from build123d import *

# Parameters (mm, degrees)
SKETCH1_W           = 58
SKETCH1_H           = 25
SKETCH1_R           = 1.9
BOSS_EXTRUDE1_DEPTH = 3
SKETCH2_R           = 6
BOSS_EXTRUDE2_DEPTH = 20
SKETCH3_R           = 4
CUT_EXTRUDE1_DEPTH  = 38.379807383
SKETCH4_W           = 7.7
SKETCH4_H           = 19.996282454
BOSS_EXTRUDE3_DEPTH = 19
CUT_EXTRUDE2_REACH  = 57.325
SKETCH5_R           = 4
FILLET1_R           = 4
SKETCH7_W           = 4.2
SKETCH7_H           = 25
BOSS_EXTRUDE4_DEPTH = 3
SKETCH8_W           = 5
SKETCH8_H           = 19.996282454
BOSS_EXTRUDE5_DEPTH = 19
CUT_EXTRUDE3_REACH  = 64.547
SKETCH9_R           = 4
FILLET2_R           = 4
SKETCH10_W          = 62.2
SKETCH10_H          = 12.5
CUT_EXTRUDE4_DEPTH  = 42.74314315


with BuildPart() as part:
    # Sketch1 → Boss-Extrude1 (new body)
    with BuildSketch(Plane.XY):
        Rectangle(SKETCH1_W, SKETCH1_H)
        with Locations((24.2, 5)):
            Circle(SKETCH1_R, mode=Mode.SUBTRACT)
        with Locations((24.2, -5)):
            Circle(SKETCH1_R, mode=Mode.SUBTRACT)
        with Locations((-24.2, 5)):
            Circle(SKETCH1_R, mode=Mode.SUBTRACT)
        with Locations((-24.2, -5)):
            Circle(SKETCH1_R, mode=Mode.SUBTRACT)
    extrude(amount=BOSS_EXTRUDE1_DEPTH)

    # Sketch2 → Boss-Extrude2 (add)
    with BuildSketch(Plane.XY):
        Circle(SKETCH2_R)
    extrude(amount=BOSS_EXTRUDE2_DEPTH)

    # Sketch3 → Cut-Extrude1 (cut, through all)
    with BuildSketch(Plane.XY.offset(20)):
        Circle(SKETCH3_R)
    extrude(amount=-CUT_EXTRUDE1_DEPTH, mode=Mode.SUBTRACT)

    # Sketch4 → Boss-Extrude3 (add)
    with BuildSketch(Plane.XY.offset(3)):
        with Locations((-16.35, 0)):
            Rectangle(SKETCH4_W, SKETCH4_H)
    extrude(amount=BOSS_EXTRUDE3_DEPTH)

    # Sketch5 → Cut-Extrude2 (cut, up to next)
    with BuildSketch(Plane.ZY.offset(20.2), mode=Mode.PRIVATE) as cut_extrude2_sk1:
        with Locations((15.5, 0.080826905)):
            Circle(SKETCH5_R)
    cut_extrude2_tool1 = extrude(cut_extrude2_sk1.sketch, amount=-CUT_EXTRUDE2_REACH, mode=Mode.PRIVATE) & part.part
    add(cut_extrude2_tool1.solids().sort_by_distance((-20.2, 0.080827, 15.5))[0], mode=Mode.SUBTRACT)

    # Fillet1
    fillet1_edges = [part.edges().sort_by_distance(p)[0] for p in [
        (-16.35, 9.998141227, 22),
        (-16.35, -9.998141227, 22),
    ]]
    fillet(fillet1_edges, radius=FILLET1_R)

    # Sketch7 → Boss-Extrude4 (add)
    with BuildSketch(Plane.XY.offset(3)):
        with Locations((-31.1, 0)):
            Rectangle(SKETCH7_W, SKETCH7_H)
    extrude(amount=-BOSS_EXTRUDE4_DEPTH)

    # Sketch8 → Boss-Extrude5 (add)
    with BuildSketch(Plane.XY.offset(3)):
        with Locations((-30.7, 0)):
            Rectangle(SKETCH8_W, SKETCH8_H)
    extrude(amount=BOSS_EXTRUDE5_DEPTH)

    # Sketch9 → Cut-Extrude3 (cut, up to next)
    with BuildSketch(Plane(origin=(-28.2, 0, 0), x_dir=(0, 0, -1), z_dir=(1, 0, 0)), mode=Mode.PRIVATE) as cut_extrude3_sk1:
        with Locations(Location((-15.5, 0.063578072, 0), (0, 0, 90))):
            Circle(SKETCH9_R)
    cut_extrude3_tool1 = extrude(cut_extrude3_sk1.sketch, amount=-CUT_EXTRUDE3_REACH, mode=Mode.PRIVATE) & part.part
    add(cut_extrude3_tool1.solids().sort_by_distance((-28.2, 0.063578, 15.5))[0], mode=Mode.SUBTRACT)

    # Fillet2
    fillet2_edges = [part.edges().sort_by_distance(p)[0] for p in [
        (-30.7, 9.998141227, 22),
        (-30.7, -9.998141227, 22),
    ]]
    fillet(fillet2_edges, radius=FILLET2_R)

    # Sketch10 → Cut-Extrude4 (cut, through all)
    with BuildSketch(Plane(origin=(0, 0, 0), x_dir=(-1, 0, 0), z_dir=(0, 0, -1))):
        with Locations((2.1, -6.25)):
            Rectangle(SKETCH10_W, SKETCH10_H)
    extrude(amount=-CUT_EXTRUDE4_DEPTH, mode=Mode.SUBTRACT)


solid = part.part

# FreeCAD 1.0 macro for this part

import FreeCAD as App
import Part
import Sketcher

V = App.Vector


def edges_at(feature, points):
    """Names of the edges that pass closest to the given points."""
    edges = feature.Shape.Edges
    near = lambda p: min(range(len(edges)), key=lambda i: edges[i].distToShape(Part.Vertex(*p))[0])
    return sorted({f"Edge{near(p) + 1}" for p in points})


def add_polygon(sketch, points):
    """Adds a closed chain of lines whose ends are joined by coincident constraints."""
    first, n = sketch.GeometryCount, len(points)
    for a, b in zip(points, points[1:] + points[:1]):
        sketch.addGeometry(Part.LineSegment(App.Vector(*a, 0), App.Vector(*b, 0)), False)
    for i in range(n):
        sketch.addConstraint(Sketcher.Constraint("Coincident", first + i, 2, first + (i + 1) % n, 1))

doc = App.newDocument("Part")
body = doc.addObject("PartDesign::Body", "Body")

sketch1 = body.newObject("Sketcher::SketchObject", "Sketch")
sketch1.AttachmentSupport = (doc.getObject("XY_Plane"), [""])
sketch1.MapMode = "FlatFace"
add_polygon(sketch1, [(-29, 12.5), (-29, -12.5), (29, -12.5), (29, 12.5)])
sketch1.addGeometry(Part.Circle(V(-24.2, -5, 0), V(0, 0, 1), 1.9), False)
sketch1.addGeometry(Part.Circle(V(24.2, -5, 0), V(0, 0, 1), 1.9), False)
sketch1.addGeometry(Part.Circle(V(-24.2, 5, 0), V(0, 0, 1), 1.9), False)
sketch1.addGeometry(Part.Circle(V(24.2, 5, 0), V(0, 0, 1), 1.9), False)
sketch1.addConstraint(Sketcher.Constraint("Vertical", 0))
sketch1.addConstraint(Sketcher.Constraint("Horizontal", 1))
sketch1.addConstraint(Sketcher.Constraint("Vertical", 2))
sketch1.addConstraint(Sketcher.Constraint("Horizontal", 3))
sketch1.addConstraint(Sketcher.Constraint("Equal", 4, 5))
sketch1.addConstraint(Sketcher.Constraint("Equal", 5, 6))
sketch1.addConstraint(Sketcher.Constraint("Equal", 6, 7))
sketch1.addConstraint(Sketcher.Constraint("Symmetric", 5, 3, 6, 3, -1, 1))
sketch1.addConstraint(Sketcher.Constraint("Symmetric", 4, 3, 7, 3, -1, 1))
sketch1.addConstraint(Sketcher.Constraint("Symmetric", 0, 2, 2, 2, -1, 1))
sketch1.addConstraint(Sketcher.Constraint("Symmetric", 4, 3, 5, 3, -2))
sketch1.addConstraint(Sketcher.Constraint("Diameter", 4, 3.8))
sketch1.addConstraint(Sketcher.Constraint("DistanceX", 1, 1, 1, 2, 58.0))
sketch1.addConstraint(Sketcher.Constraint("DistanceY", 0, 2, 0, 1, 25.0))
sketch1.addConstraint(Sketcher.Constraint("DistanceY", 4, 3, -1, 1, 5.0))
sketch1.addConstraint(Sketcher.Constraint("DistanceX", 4, 3, -1, 1, 24.2))
pad1 = body.newObject("PartDesign::Pad", "Pad")
pad1.Profile = sketch1
pad1.Length = 3

sketch2 = body.newObject("Sketcher::SketchObject", "Sketch001")
sketch2.AttachmentSupport = (doc.getObject("XY_Plane"), [""])
sketch2.MapMode = "FlatFace"
sketch2.addGeometry(Part.Circle(V(0, 0, 0), V(0, 0, 1), 6), False)
sketch2.addConstraint(Sketcher.Constraint("Coincident", 0, 3, -1, 1))
sketch2.addConstraint(Sketcher.Constraint("Diameter", 0, 12.0))
pad2 = body.newObject("PartDesign::Pad", "Pad001")
pad2.Profile = sketch2
pad2.Length = 20

sketch3 = body.newObject("Sketcher::SketchObject", "Sketch002")
sketch3.AttachmentSupport = (doc.getObject("XY_Plane"), [""])
sketch3.MapMode = "FlatFace"
sketch3.AttachmentOffset = App.Placement(V(0, 0, 20), App.Rotation())
sketch3.addGeometry(Part.Circle(V(0, 0, 0), V(0, 0, 1), 4), False)
sketch3.addConstraint(Sketcher.Constraint("Coincident", 0, 3, -1, 1))
sketch3.addConstraint(Sketcher.Constraint("Diameter", 0, 8.0))
pocket1 = body.newObject("PartDesign::Pocket", "Pocket")
pocket1.Profile = sketch3
pocket1.Type = "ThroughAll"

sketch4 = body.newObject("Sketcher::SketchObject", "Sketch003")
sketch4.AttachmentSupport = (doc.getObject("XY_Plane"), [""])
sketch4.MapMode = "FlatFace"
sketch4.AttachmentOffset = App.Placement(V(0, 0, 3), App.Rotation())
add_polygon(sketch4, [(-20, 10), (-20, -10), (-12, -10), (-12, 10)])
sketch4.addConstraint(Sketcher.Constraint("Vertical", 0))
sketch4.addConstraint(Sketcher.Constraint("Horizontal", 1))
sketch4.addConstraint(Sketcher.Constraint("Vertical", 2))
sketch4.addConstraint(Sketcher.Constraint("Horizontal", 3))
sketch4.addConstraint(Sketcher.Constraint("DistanceX", 1, 1, 1, 2, 7.7))
sketch4.addConstraint(Sketcher.Constraint("DistanceX", 0, 2, -1, 1, 20.2))
sketch4.addConstraint(Sketcher.Constraint("DistanceY", 0, 2, 0, 1, 19.996282))
sketch4.addConstraint(Sketcher.Constraint("DistanceY", 0, 2, -1, 1, 9.998141))
pad3 = body.newObject("PartDesign::Pad", "Pad002")
pad3.Profile = sketch4
pad3.Length = 19

sketch5 = body.newObject("Sketcher::SketchObject", "Sketch004")
sketch5.AttachmentSupport = (doc.getObject("YZ_Plane"), [""])
sketch5.MapMode = "FlatFace"
sketch5.AttachmentOffset = App.Placement(V(0, 0, -20.2), App.Rotation())
sketch5.addGeometry(Part.Circle(V(0.1, 15.5, 0), V(0, 0, 1), 4), False)
sketch5.addConstraint(Sketcher.Constraint("Diameter", 0, 8.0))
sketch5.addConstraint(Sketcher.Constraint("DistanceY", -1, 1, 0, 3, 15.5))
sketch5.addConstraint(Sketcher.Constraint("DistanceX", -1, 1, 0, 3, 0.080827))
pocket2 = body.newObject("PartDesign::Pocket", "Pocket001")
pocket2.Profile = sketch5
pocket2.Type = "UpToFirst"
pocket2.Reversed = True
doc.recompute()

fillet = body.newObject("PartDesign::Fillet", "Fillet")
fillet.Base = (pocket2, edges_at(pocket2, [(-16.35, 9.998, 22), (-16.35, -9.998, 22)]))
fillet.Radius = 4

sketch6 = body.newObject("Sketcher::SketchObject", "Sketch005")
sketch6.AttachmentSupport = (doc.getObject("XY_Plane"), [""])
sketch6.MapMode = "FlatFace"
sketch6.AttachmentOffset = App.Placement(V(0, 0, 3), App.Rotation())
add_polygon(sketch6, [(-33.2, 12.5), (-33.2, -12.5), (-29, -12.5), (-29, 12.5)])
sketch6.addConstraint(Sketcher.Constraint("Vertical", 0))
sketch6.addConstraint(Sketcher.Constraint("Horizontal", 1))
sketch6.addConstraint(Sketcher.Constraint("Vertical", 2))
sketch6.addConstraint(Sketcher.Constraint("Horizontal", 3))
sketch6.addConstraint(Sketcher.Constraint("DistanceY", 0, 2, 0, 1, 25.0))
sketch6.addConstraint(Sketcher.Constraint("DistanceX", 1, 1, 1, 2, 4.2))
sketch6.addConstraint(Sketcher.Constraint("DistanceX", 1, 2, -1, 1, 29.0))
sketch6.addConstraint(Sketcher.Constraint("DistanceY", 0, 2, -1, 1, 12.5))
pad4 = body.newObject("PartDesign::Pad", "Pad003")
pad4.Profile = sketch6
pad4.Length = 3
pad4.Reversed = True

sketch7 = body.newObject("Sketcher::SketchObject", "Sketch006")
sketch7.AttachmentSupport = (doc.getObject("XY_Plane"), [""])
sketch7.MapMode = "FlatFace"
sketch7.AttachmentOffset = App.Placement(V(0, 0, 3), App.Rotation())
add_polygon(sketch7, [(-33, 10), (-33, -10), (-28, -10), (-28, 10)])
sketch7.addConstraint(Sketcher.Constraint("Vertical", 0))
sketch7.addConstraint(Sketcher.Constraint("Horizontal", 1))
sketch7.addConstraint(Sketcher.Constraint("Vertical", 2))
sketch7.addConstraint(Sketcher.Constraint("Horizontal", 3))
sketch7.addConstraint(Sketcher.Constraint("DistanceX", 1, 1, 1, 2, 5.0))
sketch7.addConstraint(Sketcher.Constraint("DistanceX", 0, 2, -1, 1, 33.2))
sketch7.addConstraint(Sketcher.Constraint("DistanceY", 0, 2, 0, 1, 19.996282))
sketch7.addConstraint(Sketcher.Constraint("DistanceY", 0, 2, -1, 1, 9.998141))
pad5 = body.newObject("PartDesign::Pad", "Pad004")
pad5.Profile = sketch7
pad5.Length = 19

sketch8 = body.newObject("Sketcher::SketchObject", "Sketch007")
sketch8.AttachmentSupport = (doc.getObject("YZ_Plane"), [""])
sketch8.MapMode = "FlatFace"
sketch8.AttachmentOffset = App.Placement(V(0, 0, -28.2), App.Rotation())
sketch8.addGeometry(Part.Circle(V(0.1, 15.5, 0), V(0, 0, 1), 4), False)
sketch8.addConstraint(Sketcher.Constraint("Diameter", 0, 8.0))
sketch8.addConstraint(Sketcher.Constraint("DistanceY", -1, 1, 0, 3, 15.5))
sketch8.addConstraint(Sketcher.Constraint("DistanceX", -1, 1, 0, 3, 0.063578))
pocket3 = body.newObject("PartDesign::Pocket", "Pocket002")
pocket3.Profile = sketch8
pocket3.Type = "UpToFirst"
doc.recompute()

fillet2 = body.newObject("PartDesign::Fillet", "Fillet001")
fillet2.Base = (pocket3, edges_at(pocket3, [(-30.7, 9.998, 22), (-30.7, -9.998, 22)]))
fillet2.Radius = 4

sketch9 = body.newObject("Sketcher::SketchObject", "Sketch008")
sketch9.AttachmentSupport = (doc.getObject("XY_Plane"), [""])
sketch9.MapMode = "FlatFace"
add_polygon(sketch9, [(29, 0), (29, -12), (-33, -12), (-33, 0)])
sketch9.addConstraint(Sketcher.Constraint("Vertical", 0))
sketch9.addConstraint(Sketcher.Constraint("Horizontal", 1))
sketch9.addConstraint(Sketcher.Constraint("Vertical", 2))
sketch9.addConstraint(Sketcher.Constraint("Horizontal", 3))
sketch9.addConstraint(Sketcher.Constraint("PointOnObject", 2, 2, -1))
sketch9.addConstraint(Sketcher.Constraint("DistanceX", 1, 2, 1, 1, 62.2))
sketch9.addConstraint(Sketcher.Constraint("DistanceY", 0, 2, 0, 1, 12.5))
sketch9.addConstraint(Sketcher.Constraint("DistanceX", -1, 1, 0, 2, 29.0))
pocket4 = body.newObject("PartDesign::Pocket", "Pocket003")
pocket4.Profile = sketch9
pocket4.Type = "ThroughAll"
pocket4.Reversed = True

doc.recompute()
